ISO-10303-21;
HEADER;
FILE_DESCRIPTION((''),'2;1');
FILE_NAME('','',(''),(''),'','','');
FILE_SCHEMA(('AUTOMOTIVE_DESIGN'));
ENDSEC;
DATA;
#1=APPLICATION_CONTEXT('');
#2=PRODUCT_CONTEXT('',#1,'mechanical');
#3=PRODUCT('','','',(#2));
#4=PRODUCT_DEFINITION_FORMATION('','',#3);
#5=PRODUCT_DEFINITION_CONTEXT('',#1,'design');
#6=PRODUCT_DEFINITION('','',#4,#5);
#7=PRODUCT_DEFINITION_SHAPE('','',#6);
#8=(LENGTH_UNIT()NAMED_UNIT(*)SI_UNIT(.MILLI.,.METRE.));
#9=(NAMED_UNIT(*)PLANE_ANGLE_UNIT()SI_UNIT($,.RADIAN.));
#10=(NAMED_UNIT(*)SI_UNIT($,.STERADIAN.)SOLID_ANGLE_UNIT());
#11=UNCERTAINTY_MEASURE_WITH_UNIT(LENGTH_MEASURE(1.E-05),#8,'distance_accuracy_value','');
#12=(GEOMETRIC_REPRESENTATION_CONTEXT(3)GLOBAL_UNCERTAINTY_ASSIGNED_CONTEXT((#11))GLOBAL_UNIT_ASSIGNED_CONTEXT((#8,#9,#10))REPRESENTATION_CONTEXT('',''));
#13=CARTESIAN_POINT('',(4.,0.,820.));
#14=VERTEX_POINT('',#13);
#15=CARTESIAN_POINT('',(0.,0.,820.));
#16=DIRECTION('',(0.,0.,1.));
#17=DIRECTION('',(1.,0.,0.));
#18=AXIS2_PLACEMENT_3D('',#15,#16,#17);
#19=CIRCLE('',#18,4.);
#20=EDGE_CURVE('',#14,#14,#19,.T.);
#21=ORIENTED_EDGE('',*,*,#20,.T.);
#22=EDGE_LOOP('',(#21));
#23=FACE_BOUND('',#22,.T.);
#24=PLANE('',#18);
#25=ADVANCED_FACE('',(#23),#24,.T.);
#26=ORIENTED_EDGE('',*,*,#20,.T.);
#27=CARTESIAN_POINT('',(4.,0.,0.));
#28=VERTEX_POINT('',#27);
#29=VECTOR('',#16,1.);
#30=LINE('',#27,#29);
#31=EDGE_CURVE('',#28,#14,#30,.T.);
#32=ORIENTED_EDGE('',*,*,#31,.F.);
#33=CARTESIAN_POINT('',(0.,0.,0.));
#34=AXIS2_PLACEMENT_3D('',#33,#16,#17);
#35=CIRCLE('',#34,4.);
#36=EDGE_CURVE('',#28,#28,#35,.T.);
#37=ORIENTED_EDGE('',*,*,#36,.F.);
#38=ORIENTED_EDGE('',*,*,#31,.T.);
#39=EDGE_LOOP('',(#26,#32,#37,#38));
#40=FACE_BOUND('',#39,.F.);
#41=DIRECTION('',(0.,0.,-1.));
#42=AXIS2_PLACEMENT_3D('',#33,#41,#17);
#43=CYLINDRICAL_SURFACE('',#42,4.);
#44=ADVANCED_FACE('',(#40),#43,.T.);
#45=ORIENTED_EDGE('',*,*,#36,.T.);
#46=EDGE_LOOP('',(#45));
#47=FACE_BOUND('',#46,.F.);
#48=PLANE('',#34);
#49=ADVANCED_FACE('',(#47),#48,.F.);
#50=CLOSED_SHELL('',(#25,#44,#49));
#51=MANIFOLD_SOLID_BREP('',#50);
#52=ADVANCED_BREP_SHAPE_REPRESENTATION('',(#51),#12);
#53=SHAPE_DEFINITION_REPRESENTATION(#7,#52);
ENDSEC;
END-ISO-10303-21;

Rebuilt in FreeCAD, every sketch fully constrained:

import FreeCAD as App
import Part
import Sketcher
from FreeCAD import Vector
Q = App.Units.Quantity

doc = App.newDocument("Part")
body = doc.addObject("PartDesign::Body", "Body")

# Sketch on XY plane
sketch1 = body.newObject("Sketcher::SketchObject", "Sketch")
sketch1.AttachmentSupport = (doc.getObject("XY_Plane"), [""])
sketch1.MapMode = "FlatFace"
sketch1.addGeometry(Part.Circle(Vector(0, 0, 0), Vector(0, 0, 1), 4), False)
sketch1.addConstraint([
    Sketcher.Constraint("Coincident", 0, 3, -1, 1),
    Sketcher.Constraint("Diameter", 0, Q("8 mm")),
])
pad1 = body.newObject("PartDesign::Pad", "Pad")
pad1.Profile = sketch1
pad1.Length = 820

doc.recompute()
